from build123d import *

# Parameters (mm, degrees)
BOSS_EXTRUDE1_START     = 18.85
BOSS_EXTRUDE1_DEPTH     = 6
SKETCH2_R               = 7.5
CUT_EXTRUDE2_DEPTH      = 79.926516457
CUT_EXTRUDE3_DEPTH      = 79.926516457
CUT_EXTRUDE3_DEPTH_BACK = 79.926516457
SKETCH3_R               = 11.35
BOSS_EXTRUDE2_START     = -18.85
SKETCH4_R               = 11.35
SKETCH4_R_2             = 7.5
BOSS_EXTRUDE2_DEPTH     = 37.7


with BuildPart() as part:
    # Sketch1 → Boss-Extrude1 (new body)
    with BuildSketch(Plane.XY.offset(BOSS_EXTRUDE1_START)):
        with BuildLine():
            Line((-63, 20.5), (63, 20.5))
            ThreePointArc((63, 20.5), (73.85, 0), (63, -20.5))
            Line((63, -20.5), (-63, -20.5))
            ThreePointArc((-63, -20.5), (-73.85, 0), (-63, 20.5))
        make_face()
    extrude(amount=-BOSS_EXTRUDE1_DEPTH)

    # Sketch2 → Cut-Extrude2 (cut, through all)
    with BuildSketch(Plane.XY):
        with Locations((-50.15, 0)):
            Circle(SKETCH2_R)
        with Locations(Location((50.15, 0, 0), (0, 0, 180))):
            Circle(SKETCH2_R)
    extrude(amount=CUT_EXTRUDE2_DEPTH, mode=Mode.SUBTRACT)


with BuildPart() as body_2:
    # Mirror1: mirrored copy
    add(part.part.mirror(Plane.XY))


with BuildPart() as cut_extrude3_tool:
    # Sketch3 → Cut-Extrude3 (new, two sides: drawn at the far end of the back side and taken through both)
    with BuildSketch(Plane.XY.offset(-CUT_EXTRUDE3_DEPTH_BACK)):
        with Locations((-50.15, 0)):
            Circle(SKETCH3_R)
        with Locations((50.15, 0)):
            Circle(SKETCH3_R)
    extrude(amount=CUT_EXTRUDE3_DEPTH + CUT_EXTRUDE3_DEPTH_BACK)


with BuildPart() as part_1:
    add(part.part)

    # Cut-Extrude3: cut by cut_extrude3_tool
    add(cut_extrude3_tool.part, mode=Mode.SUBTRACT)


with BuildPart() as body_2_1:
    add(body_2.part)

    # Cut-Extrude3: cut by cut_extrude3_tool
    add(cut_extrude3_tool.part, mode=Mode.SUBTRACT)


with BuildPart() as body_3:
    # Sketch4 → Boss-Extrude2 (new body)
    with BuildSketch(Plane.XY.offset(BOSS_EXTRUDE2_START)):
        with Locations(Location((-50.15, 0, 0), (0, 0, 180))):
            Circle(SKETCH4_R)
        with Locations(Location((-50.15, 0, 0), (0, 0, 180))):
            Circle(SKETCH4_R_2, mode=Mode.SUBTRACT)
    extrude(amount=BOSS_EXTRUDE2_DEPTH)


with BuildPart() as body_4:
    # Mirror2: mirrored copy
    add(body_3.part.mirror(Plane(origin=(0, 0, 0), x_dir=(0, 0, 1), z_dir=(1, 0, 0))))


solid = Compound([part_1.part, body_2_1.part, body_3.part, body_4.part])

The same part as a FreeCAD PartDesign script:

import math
import FreeCAD as App
import Part
import Sketcher

doc = App.newDocument("Part")
body = doc.addObject("PartDesign::Body", "Body")

# Sketch on XY plane
sketch1 = body.newObject("Sketcher::SketchObject", "Sketch")
sketch1.AttachmentSupport = (doc.getObject("XY_Plane"), [""])
sketch1.MapMode = "FlatFace"
sketch1.AttachmentOffset = App.Placement(App.Vector(0, 0, 18.85), App.Rotation())
sketch1.addGeometry([
    Part.LineSegment(App.Vector(63, 20.5, 0), App.Vector(-63, 20.5, 0)),
    Part.ArcOfCircle(Part.Circle(App.Vector(-49.058641, 0, 0), App.Vector(0, 0, 1), 24.791359), math.radians(124.2183), math.radians(235.7817)),
    Part.LineSegment(App.Vector(-63, -20.5, 0), App.Vector(63, -20.5, 0)),
    Part.ArcOfCircle(Part.Circle(App.Vector(49.058641, 0, 0), App.Vector(0, 0, 1), 24.791359), math.radians(-55.7817), math.radians(55.7817)),
], False)
sketch1.addConstraint([
    Sketcher.Constraint("Coincident", 0, 2, 1, 1),
    Sketcher.Constraint("Coincident", 1, 2, 2, 1),
    Sketcher.Constraint("Coincident", 2, 2, 3, 1),
    Sketcher.Constraint("Coincident", 3, 2, 0, 1),
    Sketcher.Constraint("Horizontal", 0),
    Sketcher.Constraint("Horizontal", 2),
    Sketcher.Constraint("Equal", 1, 3),
    Sketcher.Constraint("Symmetric", 1, 3, 3, 3, -1, 1),
    Sketcher.Constraint("Symmetric", 0, 2, 1, 2, -1),
    Sketcher.Constraint("DistanceX", 0, 2, 0, 1, 126.0),
    Sketcher.Constraint("DistanceY", 1, 2, 0, 2, 41.0),
    Sketcher.Constraint("Radius", 1, 24.791359),
])
pad1 = body.newObject("PartDesign::Pad", "Pad")
pad1.Profile = sketch1
pad1.Length = 6
pad1.Reversed = True

# Sketch on XY plane
sketch2 = body.newObject("Sketcher::SketchObject", "Sketch001")
sketch2.AttachmentSupport = (doc.getObject("XY_Plane"), [""])
sketch2.MapMode = "FlatFace"
sketch2.addGeometry([
    Part.Circle(App.Vector(-50.15, 0, 0), App.Vector(0, 0, 1), 7.5),
    Part.Circle(App.Vector(50.15, 0, 0), App.Vector(0, 0, 1), 7.5),
], False)
sketch2.addConstraint([
    Sketcher.Constraint("Equal", 0, 1),
    Sketcher.Constraint("Symmetric", 0, 3, 1, 3, -1, 1),
    Sketcher.Constraint("PointOnObject", 0, 3, -1),
    Sketcher.Constraint("Diameter", 0, 15.0),
    Sketcher.Constraint("DistanceX", 0, 3, 1, 3, 100.3),
])
pocket1 = body.newObject("PartDesign::Pocket", "Pocket")
pocket1.Profile = sketch2
pocket1.Type = "ThroughAll"
pocket1.Reversed = True
body2 = doc.addObject("PartDesign::Body", "Body001")
doc.recompute()

mirroring = doc.addObject("Part::Mirroring", "Mirroring")
mirroring.Source = body
mirroring.Base = App.Vector(0, 0, 0)
mirroring.Normal = App.Vector(0, 0, 1)
body2.BaseFeature = mirroring
doc.recompute()
body3 = doc.addObject("PartDesign::Body", "Body002")
body3.AllowCompound = True

# Sketch on XY plane
sketch3 = body3.newObject("Sketcher::SketchObject", "Sketch002")
sketch3.AttachmentSupport = (doc.getObject("XY_Plane002"), [""])
sketch3.MapMode = "FlatFace"
sketch3.addGeometry([
    Part.Circle(App.Vector(-50.15, 0, 0), App.Vector(0, 0, 1), 11.35),
    Part.Circle(App.Vector(50.15, 0, 0), App.Vector(0, 0, 1), 11.35),
], False)
sketch3.addConstraint([
    Sketcher.Constraint("Equal", 0, 1),
    Sketcher.Constraint("Symmetric", 0, 3, 1, 3, -1, 1),
    Sketcher.Constraint("PointOnObject", 0, 3, -1),
    Sketcher.Constraint("Diameter", 0, 22.7),
    Sketcher.Constraint("DistanceX", 0, 3, 1, 3, 100.3),
])
pad2 = body3.newObject("PartDesign::Pad", "Pad001")
pad2.Profile = sketch3
pad2.Type = "TwoLengths"
pad2.Length = 79.926516
pad2.Length2 = 79.926516
doc.recompute()

body4 = doc.addObject("PartDesign::Body", "Body003")
body4.BaseFeature = body3
boolean = body.newObject("PartDesign::Boolean", "Boolean")
boolean.Type = "Cut"
boolean.addObjects([body4])
doc.recompute()

boolean2 = body2.newObject("PartDesign::Boolean", "Boolean001")
boolean2.Type = "Cut"
boolean2.addObjects([body3])
body5 = doc.addObject("PartDesign::Body", "Body004")

# Sketch on XY plane
sketch4 = body5.newObject("Sketcher::SketchObject", "Sketch003")
sketch4.AttachmentSupport = (doc.getObject("XY_Plane004"), [""])
sketch4.MapMode = "FlatFace"
sketch4.AttachmentOffset = App.Placement(App.Vector(0, 0, -18.85), App.Rotation())
sketch4.addGeometry([
    Part.Circle(App.Vector(-50.15, 0, 0), App.Vector(0, 0, 1), 11.35),
    Part.Circle(App.Vector(-50.15, 0, 0), App.Vector(0, 0, 1), 7.5),
], False)
sketch4.addConstraint([
    Sketcher.Constraint("Coincident", 1, 3, 0, 3),
    Sketcher.Constraint("PointOnObject", 0, 3, -1),
    Sketcher.Constraint("Diameter", 1, 15.0),
    Sketcher.Constraint("Diameter", 0, 22.7),
    Sketcher.Constraint("DistanceX", 0, 3, -1, 1, 50.15),
])
pad3 = body5.newObject("PartDesign::Pad", "Pad002")
pad3.Profile = sketch4
pad3.Length = 37.7
body6 = doc.addObject("PartDesign::Body", "Body005")
doc.recompute()

mirroring2 = doc.addObject("Part::Mirroring", "Mirroring001")
mirroring2.Source = body5
mirroring2.Base = App.Vector(0, 0, 0)
mirroring2.Normal = App.Vector(1, 0, 0)
body6.BaseFeature = mirroring2
doc.recompute()
mirroring.Visibility = False
mirroring2.Visibility = False

doc.recompute()
